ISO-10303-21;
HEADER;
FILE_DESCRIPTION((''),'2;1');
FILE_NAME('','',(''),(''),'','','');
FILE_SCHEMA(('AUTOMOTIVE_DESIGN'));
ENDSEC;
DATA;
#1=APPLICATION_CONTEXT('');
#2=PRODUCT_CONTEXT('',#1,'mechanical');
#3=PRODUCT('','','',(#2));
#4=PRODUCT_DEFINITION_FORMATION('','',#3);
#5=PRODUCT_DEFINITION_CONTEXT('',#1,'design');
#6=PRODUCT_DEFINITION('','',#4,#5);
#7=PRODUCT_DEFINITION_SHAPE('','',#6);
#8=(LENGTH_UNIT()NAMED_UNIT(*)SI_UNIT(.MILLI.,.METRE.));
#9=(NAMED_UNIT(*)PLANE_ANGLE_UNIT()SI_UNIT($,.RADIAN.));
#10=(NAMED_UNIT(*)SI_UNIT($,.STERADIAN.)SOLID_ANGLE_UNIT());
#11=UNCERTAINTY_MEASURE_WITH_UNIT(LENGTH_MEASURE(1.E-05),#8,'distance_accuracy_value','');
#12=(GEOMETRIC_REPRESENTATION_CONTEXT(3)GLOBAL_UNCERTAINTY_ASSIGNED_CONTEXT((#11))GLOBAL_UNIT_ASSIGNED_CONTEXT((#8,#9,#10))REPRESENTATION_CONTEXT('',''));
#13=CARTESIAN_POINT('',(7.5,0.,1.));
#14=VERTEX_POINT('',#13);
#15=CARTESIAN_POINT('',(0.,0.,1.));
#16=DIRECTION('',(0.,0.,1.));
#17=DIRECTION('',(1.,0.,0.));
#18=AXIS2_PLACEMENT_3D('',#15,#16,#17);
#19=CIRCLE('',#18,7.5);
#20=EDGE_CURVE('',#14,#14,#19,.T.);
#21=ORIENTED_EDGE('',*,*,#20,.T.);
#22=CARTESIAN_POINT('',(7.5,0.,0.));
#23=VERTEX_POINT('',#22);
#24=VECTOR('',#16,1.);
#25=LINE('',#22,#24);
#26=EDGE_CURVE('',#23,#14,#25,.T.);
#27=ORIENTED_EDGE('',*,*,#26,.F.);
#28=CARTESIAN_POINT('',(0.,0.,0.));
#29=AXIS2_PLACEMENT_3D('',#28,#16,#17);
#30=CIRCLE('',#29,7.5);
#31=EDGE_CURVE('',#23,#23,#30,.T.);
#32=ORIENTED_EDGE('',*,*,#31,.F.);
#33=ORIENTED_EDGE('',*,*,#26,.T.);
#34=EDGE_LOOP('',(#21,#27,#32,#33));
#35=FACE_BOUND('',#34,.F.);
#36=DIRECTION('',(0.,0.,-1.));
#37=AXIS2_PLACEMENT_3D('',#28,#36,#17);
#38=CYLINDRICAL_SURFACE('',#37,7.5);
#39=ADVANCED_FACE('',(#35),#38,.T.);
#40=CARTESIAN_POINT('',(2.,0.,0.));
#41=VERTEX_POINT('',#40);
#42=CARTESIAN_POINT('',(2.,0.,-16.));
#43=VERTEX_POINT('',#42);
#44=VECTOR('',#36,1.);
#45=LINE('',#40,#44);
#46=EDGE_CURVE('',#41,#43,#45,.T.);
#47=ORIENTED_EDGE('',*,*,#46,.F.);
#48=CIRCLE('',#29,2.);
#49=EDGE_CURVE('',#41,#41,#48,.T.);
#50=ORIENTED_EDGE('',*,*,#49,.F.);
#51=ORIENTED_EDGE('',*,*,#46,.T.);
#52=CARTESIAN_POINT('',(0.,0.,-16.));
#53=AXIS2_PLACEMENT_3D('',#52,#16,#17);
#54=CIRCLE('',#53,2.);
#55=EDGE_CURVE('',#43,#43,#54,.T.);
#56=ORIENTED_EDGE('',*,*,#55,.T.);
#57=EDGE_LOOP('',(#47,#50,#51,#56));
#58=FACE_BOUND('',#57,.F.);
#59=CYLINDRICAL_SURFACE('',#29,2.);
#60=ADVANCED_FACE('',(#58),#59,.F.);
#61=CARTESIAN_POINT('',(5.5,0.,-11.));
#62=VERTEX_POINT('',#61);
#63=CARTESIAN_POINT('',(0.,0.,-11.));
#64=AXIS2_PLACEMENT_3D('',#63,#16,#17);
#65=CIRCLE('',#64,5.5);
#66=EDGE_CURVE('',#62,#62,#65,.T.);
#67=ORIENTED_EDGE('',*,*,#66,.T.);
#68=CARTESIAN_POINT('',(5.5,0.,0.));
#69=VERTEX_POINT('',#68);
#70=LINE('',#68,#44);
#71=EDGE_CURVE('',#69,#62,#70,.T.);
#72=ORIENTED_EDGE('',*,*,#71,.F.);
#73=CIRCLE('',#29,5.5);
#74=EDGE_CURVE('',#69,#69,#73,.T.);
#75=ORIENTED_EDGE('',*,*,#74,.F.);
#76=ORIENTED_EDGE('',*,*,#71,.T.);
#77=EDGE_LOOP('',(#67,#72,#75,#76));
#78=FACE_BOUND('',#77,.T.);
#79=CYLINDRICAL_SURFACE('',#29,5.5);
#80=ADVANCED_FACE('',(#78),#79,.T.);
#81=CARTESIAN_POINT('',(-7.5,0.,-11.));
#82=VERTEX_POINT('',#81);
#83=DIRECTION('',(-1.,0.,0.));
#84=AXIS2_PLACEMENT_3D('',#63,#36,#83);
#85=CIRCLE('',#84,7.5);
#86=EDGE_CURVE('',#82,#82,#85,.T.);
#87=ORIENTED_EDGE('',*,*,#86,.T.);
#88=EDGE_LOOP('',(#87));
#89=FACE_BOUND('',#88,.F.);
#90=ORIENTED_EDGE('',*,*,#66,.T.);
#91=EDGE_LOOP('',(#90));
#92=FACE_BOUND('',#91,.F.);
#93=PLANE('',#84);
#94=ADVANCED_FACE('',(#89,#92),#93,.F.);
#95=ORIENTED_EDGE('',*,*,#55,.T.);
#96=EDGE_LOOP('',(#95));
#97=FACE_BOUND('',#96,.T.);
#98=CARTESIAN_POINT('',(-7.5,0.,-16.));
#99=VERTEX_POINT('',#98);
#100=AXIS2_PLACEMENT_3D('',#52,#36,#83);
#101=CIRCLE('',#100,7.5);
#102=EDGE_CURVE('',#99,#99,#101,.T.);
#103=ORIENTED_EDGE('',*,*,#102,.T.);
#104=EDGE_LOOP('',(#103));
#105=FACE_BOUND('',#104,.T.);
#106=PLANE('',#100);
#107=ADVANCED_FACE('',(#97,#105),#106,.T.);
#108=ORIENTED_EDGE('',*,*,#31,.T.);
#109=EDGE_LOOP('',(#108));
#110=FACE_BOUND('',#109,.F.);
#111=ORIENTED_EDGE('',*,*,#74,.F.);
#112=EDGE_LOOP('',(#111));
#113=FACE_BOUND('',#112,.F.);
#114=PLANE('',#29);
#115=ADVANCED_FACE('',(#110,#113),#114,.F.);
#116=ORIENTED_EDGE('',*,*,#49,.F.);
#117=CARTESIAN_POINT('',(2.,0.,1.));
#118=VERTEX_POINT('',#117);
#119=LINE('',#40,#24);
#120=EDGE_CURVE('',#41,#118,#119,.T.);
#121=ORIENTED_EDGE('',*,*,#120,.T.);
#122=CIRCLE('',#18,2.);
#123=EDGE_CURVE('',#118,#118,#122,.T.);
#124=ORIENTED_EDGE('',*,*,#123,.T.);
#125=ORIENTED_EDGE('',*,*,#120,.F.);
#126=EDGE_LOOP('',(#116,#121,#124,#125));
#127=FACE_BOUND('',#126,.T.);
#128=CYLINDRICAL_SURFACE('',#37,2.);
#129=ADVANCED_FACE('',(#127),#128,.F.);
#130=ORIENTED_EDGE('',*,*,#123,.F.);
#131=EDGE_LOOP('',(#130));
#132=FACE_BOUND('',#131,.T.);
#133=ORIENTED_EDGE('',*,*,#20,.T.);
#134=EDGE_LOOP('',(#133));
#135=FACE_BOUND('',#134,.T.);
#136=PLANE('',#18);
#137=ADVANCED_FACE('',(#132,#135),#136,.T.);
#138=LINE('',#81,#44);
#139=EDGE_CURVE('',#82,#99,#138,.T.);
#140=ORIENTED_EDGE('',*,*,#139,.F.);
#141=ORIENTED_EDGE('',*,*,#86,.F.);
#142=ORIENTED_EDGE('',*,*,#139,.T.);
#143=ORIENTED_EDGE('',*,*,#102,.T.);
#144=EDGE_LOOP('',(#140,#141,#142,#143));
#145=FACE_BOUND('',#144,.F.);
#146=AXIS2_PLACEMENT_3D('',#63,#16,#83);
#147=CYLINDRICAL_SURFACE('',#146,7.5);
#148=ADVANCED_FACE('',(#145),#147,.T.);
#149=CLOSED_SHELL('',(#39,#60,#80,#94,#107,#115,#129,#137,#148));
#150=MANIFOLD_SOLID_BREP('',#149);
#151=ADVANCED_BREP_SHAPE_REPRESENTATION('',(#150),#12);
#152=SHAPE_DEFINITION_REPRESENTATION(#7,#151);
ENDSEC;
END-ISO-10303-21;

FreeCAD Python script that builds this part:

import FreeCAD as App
import Part
import Sketcher

V = App.Vector

doc = App.newDocument("Part")
body = doc.addObject("PartDesign::Body", "Body")

sketch1 = body.newObject("Sketcher::SketchObject", "Sketch")
sketch1.AttachmentSupport = (doc.getObject("XY_Plane"), [""])
sketch1.MapMode = "FlatFace"
sketch1.addGeometry(Part.Circle(V(0, 0, 0), V(0, 0, 1), 6), False)
sketch1.addConstraint(Sketcher.Constraint("Coincident", 0, 3, -1, 1))
sketch1.addConstraint(Sketcher.Constraint("Diameter", 0, 11.0))
pad1 = body.newObject("PartDesign::Pad", "Pad")
pad1.Profile = sketch1
pad1.Length = 11
pad1.Reversed = True

sketch2 = body.newObject("Sketcher::SketchObject", "Sketch001")
sketch2.AttachmentSupport = (doc.getObject("XY_Plane"), [""])
sketch2.MapMode = "FlatFace"
sketch2.AttachmentOffset = App.Placement(V(0, 0, -11), App.Rotation())
sketch2.addGeometry(Part.Circle(V(0, 0, 0), V(0, 0, 1), 8), False)
sketch2.addConstraint(Sketcher.Constraint("Coincident", 0, 3, -1, 1))
sketch2.addConstraint(Sketcher.Constraint("Diameter", 0, 15.0))
pad2 = body.newObject("PartDesign::Pad", "Pad001")
pad2.Profile = sketch2
pad2.Length = 5
pad2.Reversed = True

sketch3 = body.newObject("Sketcher::SketchObject", "Sketch002")
sketch3.AttachmentSupport = (doc.getObject("XY_Plane"), [""])
sketch3.MapMode = "FlatFace"
sketch3.addGeometry(Part.Circle(V(0, 0, 0), V(0, 0, 1), 2), False)
sketch3.addConstraint(Sketcher.Constraint("Coincident", 0, 3, -1, 1))
sketch3.addConstraint(Sketcher.Constraint("Diameter", 0, 4.0))
pocket1 = body.newObject("PartDesign::Pocket", "Pocket")
pocket1.Profile = sketch3
pocket1.Length = 50
pocket1.Midplane = True

sketch4 = body.newObject("Sketcher::SketchObject", "Sketch003")
sketch4.AttachmentSupport = (doc.getObject("XY_Plane"), [""])
sketch4.MapMode = "FlatFace"
sketch4.addGeometry(Part.Circle(V(0, 0, 0), V(0, 0, 1), 7.5), False)
sketch4.addGeometry(Part.Circle(V(0, 0, 0), V(0, 0, 1), 2), False)
sketch4.addConstraint(Sketcher.Constraint("Coincident", 0, 3, -1, 1))
sketch4.addConstraint(Sketcher.Constraint("Coincident", 1, 3, -1, 1))
sketch4.addConstraint(Sketcher.Constraint("Diameter", 0, 15.0))
sketch4.addConstraint(Sketcher.Constraint("Diameter", 1, 4.0))
pad3 = body.newObject("PartDesign::Pad", "Pad002")
pad3.Profile = sketch4
pad3.Length = 1

doc.recompute()
